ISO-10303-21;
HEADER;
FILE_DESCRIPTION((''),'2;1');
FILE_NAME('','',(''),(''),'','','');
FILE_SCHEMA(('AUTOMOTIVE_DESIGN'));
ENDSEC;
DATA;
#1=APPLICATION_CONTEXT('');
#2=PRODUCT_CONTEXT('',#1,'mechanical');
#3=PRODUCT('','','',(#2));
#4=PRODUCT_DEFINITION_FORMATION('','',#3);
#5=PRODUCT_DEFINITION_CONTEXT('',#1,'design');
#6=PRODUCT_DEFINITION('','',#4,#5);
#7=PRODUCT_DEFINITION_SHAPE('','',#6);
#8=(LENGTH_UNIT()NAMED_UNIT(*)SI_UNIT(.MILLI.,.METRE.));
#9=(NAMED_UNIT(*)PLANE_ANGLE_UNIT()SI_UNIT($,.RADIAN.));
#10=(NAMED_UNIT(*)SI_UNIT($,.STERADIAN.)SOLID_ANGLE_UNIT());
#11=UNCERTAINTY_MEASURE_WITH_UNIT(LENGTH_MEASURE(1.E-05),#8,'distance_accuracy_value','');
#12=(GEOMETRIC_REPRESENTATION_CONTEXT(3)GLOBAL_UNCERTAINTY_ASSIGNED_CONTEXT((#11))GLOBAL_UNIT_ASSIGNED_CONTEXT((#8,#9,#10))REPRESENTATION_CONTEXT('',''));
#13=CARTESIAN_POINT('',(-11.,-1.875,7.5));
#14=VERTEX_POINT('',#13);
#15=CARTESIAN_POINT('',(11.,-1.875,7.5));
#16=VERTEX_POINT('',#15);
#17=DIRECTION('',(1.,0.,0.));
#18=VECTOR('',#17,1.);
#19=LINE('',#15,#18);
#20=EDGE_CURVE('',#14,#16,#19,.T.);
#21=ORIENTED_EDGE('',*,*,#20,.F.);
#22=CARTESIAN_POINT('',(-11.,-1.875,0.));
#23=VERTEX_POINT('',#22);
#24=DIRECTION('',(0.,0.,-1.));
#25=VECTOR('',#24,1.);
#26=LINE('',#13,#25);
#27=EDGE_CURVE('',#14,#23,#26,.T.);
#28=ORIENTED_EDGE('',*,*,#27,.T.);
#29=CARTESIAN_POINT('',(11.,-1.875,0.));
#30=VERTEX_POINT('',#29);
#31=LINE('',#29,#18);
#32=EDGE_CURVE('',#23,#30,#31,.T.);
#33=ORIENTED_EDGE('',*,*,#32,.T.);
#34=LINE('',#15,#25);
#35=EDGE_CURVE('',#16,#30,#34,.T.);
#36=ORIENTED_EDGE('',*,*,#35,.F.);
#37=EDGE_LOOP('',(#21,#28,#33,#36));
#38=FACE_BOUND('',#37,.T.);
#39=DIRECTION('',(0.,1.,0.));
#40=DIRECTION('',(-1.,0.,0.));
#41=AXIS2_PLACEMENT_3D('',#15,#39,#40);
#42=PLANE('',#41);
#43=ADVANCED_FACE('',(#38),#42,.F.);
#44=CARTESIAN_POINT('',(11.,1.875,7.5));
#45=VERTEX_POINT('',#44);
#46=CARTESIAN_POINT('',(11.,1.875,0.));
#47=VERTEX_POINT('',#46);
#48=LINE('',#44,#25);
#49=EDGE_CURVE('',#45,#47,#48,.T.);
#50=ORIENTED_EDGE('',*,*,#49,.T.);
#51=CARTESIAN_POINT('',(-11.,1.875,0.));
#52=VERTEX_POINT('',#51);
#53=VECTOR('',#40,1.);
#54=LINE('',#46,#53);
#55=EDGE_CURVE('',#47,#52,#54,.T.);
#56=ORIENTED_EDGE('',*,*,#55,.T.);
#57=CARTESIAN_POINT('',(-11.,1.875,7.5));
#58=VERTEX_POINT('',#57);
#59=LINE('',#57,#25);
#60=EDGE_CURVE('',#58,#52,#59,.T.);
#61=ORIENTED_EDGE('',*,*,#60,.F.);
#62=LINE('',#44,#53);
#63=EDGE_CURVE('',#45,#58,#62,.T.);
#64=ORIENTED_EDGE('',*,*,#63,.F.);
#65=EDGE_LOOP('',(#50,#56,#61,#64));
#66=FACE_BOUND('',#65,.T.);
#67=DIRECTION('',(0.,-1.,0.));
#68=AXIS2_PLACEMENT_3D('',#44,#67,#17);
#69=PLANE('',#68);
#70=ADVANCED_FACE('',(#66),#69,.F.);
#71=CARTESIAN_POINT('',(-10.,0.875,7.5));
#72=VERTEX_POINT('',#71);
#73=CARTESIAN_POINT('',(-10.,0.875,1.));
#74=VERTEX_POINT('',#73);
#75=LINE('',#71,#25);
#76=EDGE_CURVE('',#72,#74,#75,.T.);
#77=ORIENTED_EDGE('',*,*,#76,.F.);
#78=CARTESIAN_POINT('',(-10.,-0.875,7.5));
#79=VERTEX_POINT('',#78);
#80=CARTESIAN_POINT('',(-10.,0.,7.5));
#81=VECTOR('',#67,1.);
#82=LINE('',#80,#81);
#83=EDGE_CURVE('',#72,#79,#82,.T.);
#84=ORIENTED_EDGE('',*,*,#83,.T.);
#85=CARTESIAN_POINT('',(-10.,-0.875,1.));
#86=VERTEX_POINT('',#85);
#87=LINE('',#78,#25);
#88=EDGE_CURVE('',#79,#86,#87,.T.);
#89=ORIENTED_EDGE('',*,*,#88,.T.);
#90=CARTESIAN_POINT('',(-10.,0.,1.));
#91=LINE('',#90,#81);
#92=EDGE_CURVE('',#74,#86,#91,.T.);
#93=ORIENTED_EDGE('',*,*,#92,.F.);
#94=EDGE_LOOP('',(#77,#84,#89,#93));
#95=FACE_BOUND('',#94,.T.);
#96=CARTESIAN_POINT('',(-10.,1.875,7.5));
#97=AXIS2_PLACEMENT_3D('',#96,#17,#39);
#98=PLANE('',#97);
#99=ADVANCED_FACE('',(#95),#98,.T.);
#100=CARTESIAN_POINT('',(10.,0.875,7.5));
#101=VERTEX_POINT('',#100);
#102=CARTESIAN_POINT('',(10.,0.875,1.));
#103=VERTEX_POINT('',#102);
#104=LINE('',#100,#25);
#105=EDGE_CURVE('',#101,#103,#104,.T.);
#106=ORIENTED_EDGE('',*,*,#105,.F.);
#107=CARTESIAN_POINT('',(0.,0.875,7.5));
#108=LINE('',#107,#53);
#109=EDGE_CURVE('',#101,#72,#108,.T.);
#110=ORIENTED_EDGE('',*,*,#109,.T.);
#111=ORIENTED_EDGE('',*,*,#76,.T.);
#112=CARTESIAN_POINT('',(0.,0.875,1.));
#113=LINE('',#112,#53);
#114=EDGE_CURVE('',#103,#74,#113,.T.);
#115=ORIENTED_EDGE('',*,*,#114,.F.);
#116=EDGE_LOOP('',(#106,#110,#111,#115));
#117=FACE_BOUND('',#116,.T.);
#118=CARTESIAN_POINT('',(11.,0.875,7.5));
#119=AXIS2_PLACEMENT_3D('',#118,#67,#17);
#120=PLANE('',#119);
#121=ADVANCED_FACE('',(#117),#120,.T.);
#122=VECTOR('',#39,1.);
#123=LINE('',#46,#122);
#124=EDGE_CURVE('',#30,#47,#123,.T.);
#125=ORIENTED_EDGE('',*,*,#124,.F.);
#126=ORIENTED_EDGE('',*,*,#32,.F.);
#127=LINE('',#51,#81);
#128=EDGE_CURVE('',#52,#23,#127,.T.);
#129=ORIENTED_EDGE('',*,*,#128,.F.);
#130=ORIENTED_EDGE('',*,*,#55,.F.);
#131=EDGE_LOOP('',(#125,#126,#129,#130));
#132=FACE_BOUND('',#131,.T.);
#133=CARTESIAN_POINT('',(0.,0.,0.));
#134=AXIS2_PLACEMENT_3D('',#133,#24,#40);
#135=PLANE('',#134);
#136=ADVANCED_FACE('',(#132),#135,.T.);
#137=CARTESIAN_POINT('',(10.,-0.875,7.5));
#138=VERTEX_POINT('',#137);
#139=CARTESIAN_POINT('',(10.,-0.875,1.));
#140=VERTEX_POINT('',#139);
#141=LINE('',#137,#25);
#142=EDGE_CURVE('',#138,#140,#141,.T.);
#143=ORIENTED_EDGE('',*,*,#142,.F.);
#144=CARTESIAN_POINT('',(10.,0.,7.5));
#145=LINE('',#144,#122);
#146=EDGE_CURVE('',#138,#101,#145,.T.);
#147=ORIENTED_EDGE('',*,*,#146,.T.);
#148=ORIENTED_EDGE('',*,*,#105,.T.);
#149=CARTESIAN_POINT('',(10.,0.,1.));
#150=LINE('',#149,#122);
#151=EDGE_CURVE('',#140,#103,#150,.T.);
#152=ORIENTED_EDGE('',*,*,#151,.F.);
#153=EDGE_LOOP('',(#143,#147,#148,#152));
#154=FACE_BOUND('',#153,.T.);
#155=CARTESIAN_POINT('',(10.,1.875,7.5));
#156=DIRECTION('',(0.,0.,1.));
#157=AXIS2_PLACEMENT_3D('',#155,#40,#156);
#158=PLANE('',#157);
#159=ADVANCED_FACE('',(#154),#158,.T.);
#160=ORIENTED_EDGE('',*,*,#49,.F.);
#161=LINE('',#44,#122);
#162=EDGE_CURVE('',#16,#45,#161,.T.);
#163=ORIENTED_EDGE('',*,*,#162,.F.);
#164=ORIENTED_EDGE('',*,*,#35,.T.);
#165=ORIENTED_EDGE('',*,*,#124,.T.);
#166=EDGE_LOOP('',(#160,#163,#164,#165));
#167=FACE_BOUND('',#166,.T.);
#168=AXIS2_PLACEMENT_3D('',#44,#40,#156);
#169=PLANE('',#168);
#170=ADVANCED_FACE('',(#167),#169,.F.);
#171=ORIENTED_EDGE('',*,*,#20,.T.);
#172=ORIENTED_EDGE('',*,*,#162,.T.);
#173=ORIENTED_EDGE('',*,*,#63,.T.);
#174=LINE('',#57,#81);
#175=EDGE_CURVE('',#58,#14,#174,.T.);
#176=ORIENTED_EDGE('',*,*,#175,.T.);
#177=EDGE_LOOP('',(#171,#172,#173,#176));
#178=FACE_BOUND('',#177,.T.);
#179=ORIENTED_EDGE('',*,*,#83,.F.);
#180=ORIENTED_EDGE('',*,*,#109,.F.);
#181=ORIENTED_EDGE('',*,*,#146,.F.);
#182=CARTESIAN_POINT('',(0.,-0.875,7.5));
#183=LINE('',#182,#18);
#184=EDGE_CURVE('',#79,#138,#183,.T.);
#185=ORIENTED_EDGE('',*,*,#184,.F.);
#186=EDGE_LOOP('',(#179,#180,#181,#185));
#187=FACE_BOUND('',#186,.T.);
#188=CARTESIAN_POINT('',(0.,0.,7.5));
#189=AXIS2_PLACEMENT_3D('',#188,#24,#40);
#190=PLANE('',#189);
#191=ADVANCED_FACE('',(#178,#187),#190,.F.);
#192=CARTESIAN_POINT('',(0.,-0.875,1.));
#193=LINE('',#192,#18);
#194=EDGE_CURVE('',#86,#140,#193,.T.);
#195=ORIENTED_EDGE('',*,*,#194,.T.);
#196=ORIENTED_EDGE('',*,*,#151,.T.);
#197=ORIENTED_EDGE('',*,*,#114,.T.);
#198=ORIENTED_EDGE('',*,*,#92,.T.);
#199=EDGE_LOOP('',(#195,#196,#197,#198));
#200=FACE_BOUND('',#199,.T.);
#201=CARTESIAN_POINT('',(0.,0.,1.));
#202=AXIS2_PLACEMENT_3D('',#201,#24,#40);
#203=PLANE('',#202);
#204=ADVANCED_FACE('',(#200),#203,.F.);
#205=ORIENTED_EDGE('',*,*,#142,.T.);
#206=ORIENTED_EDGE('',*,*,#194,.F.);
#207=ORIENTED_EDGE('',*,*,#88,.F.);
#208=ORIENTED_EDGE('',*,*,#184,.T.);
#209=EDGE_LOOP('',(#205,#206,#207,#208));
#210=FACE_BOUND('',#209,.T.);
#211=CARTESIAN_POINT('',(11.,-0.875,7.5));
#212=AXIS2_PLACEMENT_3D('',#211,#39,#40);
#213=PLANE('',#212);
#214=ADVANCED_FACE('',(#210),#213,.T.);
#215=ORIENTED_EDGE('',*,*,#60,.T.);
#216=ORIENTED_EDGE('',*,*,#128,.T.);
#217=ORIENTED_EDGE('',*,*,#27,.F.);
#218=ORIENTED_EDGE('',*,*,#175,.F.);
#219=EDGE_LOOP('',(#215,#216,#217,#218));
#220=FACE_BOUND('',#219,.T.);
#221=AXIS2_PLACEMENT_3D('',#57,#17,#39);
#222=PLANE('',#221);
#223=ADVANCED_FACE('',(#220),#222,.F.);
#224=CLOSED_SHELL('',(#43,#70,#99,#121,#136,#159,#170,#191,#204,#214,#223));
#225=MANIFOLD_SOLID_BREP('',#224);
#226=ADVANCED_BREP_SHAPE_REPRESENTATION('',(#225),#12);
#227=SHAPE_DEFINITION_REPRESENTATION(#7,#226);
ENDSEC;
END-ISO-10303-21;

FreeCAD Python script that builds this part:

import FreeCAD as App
import Part
import Sketcher
Q = App.Units.Quantity


def faces_at(feature, points):
    """Names of the faces that lie closest to the given points."""
    faces = feature.Shape.Faces
    near = lambda p: min(range(len(faces)), key=lambda i: faces[i].distToShape(Part.Vertex(*p))[0])
    return sorted({f"Face{near(p) + 1}" for p in points})


def add_polygon(sketch, points):
    """Adds a closed chain of lines whose ends are joined by coincident constraints."""
    first, n = sketch.GeometryCount, len(points)
    for a, b in zip(points, points[1:] + points[:1]):
        sketch.addGeometry(Part.LineSegment(App.Vector(*a, 0), App.Vector(*b, 0)), False)
    for i in range(n):
        sketch.addConstraint(Sketcher.Constraint("Coincident", first + i, 2, first + (i + 1) % n, 1))

doc = App.newDocument("Part")
body = doc.addObject("PartDesign::Body", "Body")

sketch1 = doc.addObject("Sketcher::SketchObject", "Sketch")
body.addObject(sketch1)
sketch1.AttachmentSupport = (doc.XY_Plane, [""])
sketch1.MapMode = "FlatFace"
add_polygon(sketch1, [(-11, 1.9), (-11, -1.9), (11, -1.9), (11, 1.9)])
sketch1.addConstraint(Sketcher.Constraint("Vertical", 0))
sketch1.addConstraint(Sketcher.Constraint("Horizontal", 1))
sketch1.addConstraint(Sketcher.Constraint("Vertical", 2))
sketch1.addConstraint(Sketcher.Constraint("Horizontal", 3))
sketch1.addConstraint(Sketcher.Constraint("Symmetric", 0, 2, 2, 2, -1, 1))
sketch1.addConstraint(Sketcher.Constraint("DistanceX", 1, 1, 1, 2, Q("22 mm")))
sketch1.addConstraint(Sketcher.Constraint("DistanceY", 0, 2, 0, 1, Q("3.75 mm")))
pad1 = doc.addObject("PartDesign::Pad", "Pad")
body.addObject(pad1)
pad1.Profile = sketch1
pad1.Length = 7.5
doc.recompute()

thickness = doc.addObject("PartDesign::Thickness", "Thickness")
body.addObject(thickness)
thickness.Base = (pad1, faces_at(pad1, [(0, 0, 7.5)]))
thickness.Value = 1
thickness.Reversed = True
thickness.Join = "Intersection"

doc.recompute()
